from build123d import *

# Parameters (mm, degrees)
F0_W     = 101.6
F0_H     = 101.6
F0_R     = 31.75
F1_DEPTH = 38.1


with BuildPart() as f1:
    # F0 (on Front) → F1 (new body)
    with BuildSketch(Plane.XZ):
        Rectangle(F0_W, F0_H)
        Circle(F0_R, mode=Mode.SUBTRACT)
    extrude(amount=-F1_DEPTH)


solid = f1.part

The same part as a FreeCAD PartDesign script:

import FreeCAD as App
import Part
import Sketcher
from FreeCAD import Vector
Q = App.Units.Quantity


def add_polygon(sketch, points):
    """Adds a closed chain of lines whose ends are joined by coincident constraints."""
    first, n = sketch.GeometryCount, len(points)
    for a, b in zip(points, points[1:] + points[:1]):
        sketch.addGeometry(Part.LineSegment(App.Vector(*a, 0), App.Vector(*b, 0)), False)
    for i in range(n):
        sketch.addConstraint(Sketcher.Constraint("Coincident", first + i, 2, first + (i + 1) % n, 1))

doc = App.newDocument("Part")
body = doc.addObject("PartDesign::Body", "Body")

# Sketch on XZ plane
sketch1 = doc.addObject("Sketcher::SketchObject", "Sketch")
body.addObject(sketch1)
sketch1.AttachmentSupport = (doc.XZ_Plane, [""])
sketch1.MapMode = "FlatFace"
add_polygon(sketch1, [(-51, 51), (-51, -51), (51, -51), (51, 51)])  # lines 0-3
sketch1.addGeometry(Part.Circle(Vector(0, 0, 0), Vector(0, 0, 1), 32), False)  # 4
sketch1.addConstraint([
    Sketcher.Constraint("Vertical", 0),
    Sketcher.Constraint("Horizontal", 1),
    Sketcher.Constraint("Vertical", 2),
    Sketcher.Constraint("Horizontal", 3),
    Sketcher.Constraint("Coincident", 4, 3, -1, 1),
    Sketcher.Constraint("Symmetric", 0, 2, 2, 2, -1, 1),
    Sketcher.Constraint("Equal", 3, 0),
    Sketcher.Constraint("Diameter", 4, Q("2.5 in")),
    Sketcher.Constraint("DistanceX", 1, 1, 1, 2, Q("4 in")),
])
pad1 = doc.addObject("PartDesign::Pad", "Pad")
body.addObject(pad1)
pad1.Profile = sketch1
pad1.Length = Q("1.5 in")
pad1.Reversed = True

doc.recompute()
